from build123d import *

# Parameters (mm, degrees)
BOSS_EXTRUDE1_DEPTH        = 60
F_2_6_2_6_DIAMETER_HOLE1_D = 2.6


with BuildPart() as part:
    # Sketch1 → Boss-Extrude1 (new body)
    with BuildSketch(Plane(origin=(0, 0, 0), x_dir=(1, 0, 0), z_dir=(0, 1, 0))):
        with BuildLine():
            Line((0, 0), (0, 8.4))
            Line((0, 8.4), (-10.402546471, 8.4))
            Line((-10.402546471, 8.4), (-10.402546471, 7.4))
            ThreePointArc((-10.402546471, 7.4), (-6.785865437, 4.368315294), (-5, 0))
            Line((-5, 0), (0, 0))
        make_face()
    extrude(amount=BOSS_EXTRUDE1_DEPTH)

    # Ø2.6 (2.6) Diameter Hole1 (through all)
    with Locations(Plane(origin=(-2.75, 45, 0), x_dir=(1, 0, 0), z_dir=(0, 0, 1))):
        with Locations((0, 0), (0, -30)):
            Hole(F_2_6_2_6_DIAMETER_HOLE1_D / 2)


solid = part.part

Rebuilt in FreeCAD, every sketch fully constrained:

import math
import FreeCAD as App
import Part
import Sketcher

V = App.Vector

doc = App.newDocument("Part")
body = doc.addObject("PartDesign::Body", "Body")

# Sketch on XZ plane
sketch1 = doc.addObject("Sketcher::SketchObject", "Sketch")
body.addObject(sketch1)
sketch1.AttachmentSupport = (doc.XZ_Plane, [""])
sketch1.MapMode = "FlatFace"
sketch1.addGeometry([
    Part.LineSegment(V(0, 0, 0), V(0, -8.4, 0)),  # 0
    Part.LineSegment(V(0, -8.4, 0), V(-10.4, -8.4, 0)),  # 1
    Part.LineSegment(V(-10.4, -8.4, 0), V(-10.4, -7.4, 0)),  # 2
    Part.ArcOfCircle(Part.Circle(V(-14.7, 1.4, 0), V(0, 0, 1), 9.8), math.radians(-64), math.radians(-8)),  # 3
    Part.LineSegment(V(-5, 0, 0), V(0, 0, 0)),  # 4
], False)
sketch1.addConstraint([
    Sketcher.Constraint("Coincident", 0, 2, 1, 1),
    Sketcher.Constraint("Coincident", 1, 2, 2, 1),
    Sketcher.Constraint("Coincident", 2, 2, 3, 1),
    Sketcher.Constraint("Coincident", 3, 2, 4, 1),
    Sketcher.Constraint("Coincident", 4, 2, 0, 1),
    Sketcher.Constraint("Vertical", 0),
    Sketcher.Constraint("Horizontal", 1),
    Sketcher.Constraint("Vertical", 2),
    Sketcher.Constraint("Horizontal", 4),
    Sketcher.Constraint("Coincident", 4, 2, -1, 1),
    Sketcher.Constraint("DistanceX", 4, 1, 4, 2, 5.0),
    Sketcher.Constraint("DistanceY", 2, 1, 2, 2, 1.0),
    Sketcher.Constraint("DistanceY", 0, 2, 0, 1, 8.4),
    Sketcher.Constraint("Radius", 3, 9.825),
    Sketcher.Constraint("DistanceY", -1, 1, 3, 3, 1.425),
])
pad1 = doc.addObject("PartDesign::Pad", "Pad")
body.addObject(pad1)
pad1.Profile = sketch1
pad1.Length = 60
pad1.Reversed = True

# Sketch on XY plane
sketch2 = doc.addObject("Sketcher::SketchObject", "Sketch001")
body.addObject(sketch2)
sketch2.AttachmentSupport = (doc.XY_Plane, [""])
sketch2.MapMode = "FlatFace"
sketch2.addGeometry([
    Part.Circle(V(-2.8, 45, 0), V(0, 0, 1), 1.3),
    Part.Circle(V(-2.8, 15, 0), V(0, 0, 1), 1.3),
], False)
sketch2.addConstraint([
    Sketcher.Constraint("Equal", 0, 1),
    Sketcher.Constraint("Vertical", 0, 3, 1, 3),
    Sketcher.Constraint("Diameter", 0, 2.6),
    Sketcher.Constraint("DistanceY", -1, 1, 0, 3, 45.0),
    Sketcher.Constraint("DistanceY", -1, 1, 1, 3, 15.0),
    Sketcher.Constraint("DistanceX", 0, 3, -1, 1, 2.75),
])
doc.recompute()
hole = doc.addObject("PartDesign::Hole", "Hole")
body.addObject(hole)
hole.Profile = sketch2
hole.ThreadType = "None"
hole.Diameter = 2.6
hole.DepthType = "ThroughAll"

doc.recompute()
